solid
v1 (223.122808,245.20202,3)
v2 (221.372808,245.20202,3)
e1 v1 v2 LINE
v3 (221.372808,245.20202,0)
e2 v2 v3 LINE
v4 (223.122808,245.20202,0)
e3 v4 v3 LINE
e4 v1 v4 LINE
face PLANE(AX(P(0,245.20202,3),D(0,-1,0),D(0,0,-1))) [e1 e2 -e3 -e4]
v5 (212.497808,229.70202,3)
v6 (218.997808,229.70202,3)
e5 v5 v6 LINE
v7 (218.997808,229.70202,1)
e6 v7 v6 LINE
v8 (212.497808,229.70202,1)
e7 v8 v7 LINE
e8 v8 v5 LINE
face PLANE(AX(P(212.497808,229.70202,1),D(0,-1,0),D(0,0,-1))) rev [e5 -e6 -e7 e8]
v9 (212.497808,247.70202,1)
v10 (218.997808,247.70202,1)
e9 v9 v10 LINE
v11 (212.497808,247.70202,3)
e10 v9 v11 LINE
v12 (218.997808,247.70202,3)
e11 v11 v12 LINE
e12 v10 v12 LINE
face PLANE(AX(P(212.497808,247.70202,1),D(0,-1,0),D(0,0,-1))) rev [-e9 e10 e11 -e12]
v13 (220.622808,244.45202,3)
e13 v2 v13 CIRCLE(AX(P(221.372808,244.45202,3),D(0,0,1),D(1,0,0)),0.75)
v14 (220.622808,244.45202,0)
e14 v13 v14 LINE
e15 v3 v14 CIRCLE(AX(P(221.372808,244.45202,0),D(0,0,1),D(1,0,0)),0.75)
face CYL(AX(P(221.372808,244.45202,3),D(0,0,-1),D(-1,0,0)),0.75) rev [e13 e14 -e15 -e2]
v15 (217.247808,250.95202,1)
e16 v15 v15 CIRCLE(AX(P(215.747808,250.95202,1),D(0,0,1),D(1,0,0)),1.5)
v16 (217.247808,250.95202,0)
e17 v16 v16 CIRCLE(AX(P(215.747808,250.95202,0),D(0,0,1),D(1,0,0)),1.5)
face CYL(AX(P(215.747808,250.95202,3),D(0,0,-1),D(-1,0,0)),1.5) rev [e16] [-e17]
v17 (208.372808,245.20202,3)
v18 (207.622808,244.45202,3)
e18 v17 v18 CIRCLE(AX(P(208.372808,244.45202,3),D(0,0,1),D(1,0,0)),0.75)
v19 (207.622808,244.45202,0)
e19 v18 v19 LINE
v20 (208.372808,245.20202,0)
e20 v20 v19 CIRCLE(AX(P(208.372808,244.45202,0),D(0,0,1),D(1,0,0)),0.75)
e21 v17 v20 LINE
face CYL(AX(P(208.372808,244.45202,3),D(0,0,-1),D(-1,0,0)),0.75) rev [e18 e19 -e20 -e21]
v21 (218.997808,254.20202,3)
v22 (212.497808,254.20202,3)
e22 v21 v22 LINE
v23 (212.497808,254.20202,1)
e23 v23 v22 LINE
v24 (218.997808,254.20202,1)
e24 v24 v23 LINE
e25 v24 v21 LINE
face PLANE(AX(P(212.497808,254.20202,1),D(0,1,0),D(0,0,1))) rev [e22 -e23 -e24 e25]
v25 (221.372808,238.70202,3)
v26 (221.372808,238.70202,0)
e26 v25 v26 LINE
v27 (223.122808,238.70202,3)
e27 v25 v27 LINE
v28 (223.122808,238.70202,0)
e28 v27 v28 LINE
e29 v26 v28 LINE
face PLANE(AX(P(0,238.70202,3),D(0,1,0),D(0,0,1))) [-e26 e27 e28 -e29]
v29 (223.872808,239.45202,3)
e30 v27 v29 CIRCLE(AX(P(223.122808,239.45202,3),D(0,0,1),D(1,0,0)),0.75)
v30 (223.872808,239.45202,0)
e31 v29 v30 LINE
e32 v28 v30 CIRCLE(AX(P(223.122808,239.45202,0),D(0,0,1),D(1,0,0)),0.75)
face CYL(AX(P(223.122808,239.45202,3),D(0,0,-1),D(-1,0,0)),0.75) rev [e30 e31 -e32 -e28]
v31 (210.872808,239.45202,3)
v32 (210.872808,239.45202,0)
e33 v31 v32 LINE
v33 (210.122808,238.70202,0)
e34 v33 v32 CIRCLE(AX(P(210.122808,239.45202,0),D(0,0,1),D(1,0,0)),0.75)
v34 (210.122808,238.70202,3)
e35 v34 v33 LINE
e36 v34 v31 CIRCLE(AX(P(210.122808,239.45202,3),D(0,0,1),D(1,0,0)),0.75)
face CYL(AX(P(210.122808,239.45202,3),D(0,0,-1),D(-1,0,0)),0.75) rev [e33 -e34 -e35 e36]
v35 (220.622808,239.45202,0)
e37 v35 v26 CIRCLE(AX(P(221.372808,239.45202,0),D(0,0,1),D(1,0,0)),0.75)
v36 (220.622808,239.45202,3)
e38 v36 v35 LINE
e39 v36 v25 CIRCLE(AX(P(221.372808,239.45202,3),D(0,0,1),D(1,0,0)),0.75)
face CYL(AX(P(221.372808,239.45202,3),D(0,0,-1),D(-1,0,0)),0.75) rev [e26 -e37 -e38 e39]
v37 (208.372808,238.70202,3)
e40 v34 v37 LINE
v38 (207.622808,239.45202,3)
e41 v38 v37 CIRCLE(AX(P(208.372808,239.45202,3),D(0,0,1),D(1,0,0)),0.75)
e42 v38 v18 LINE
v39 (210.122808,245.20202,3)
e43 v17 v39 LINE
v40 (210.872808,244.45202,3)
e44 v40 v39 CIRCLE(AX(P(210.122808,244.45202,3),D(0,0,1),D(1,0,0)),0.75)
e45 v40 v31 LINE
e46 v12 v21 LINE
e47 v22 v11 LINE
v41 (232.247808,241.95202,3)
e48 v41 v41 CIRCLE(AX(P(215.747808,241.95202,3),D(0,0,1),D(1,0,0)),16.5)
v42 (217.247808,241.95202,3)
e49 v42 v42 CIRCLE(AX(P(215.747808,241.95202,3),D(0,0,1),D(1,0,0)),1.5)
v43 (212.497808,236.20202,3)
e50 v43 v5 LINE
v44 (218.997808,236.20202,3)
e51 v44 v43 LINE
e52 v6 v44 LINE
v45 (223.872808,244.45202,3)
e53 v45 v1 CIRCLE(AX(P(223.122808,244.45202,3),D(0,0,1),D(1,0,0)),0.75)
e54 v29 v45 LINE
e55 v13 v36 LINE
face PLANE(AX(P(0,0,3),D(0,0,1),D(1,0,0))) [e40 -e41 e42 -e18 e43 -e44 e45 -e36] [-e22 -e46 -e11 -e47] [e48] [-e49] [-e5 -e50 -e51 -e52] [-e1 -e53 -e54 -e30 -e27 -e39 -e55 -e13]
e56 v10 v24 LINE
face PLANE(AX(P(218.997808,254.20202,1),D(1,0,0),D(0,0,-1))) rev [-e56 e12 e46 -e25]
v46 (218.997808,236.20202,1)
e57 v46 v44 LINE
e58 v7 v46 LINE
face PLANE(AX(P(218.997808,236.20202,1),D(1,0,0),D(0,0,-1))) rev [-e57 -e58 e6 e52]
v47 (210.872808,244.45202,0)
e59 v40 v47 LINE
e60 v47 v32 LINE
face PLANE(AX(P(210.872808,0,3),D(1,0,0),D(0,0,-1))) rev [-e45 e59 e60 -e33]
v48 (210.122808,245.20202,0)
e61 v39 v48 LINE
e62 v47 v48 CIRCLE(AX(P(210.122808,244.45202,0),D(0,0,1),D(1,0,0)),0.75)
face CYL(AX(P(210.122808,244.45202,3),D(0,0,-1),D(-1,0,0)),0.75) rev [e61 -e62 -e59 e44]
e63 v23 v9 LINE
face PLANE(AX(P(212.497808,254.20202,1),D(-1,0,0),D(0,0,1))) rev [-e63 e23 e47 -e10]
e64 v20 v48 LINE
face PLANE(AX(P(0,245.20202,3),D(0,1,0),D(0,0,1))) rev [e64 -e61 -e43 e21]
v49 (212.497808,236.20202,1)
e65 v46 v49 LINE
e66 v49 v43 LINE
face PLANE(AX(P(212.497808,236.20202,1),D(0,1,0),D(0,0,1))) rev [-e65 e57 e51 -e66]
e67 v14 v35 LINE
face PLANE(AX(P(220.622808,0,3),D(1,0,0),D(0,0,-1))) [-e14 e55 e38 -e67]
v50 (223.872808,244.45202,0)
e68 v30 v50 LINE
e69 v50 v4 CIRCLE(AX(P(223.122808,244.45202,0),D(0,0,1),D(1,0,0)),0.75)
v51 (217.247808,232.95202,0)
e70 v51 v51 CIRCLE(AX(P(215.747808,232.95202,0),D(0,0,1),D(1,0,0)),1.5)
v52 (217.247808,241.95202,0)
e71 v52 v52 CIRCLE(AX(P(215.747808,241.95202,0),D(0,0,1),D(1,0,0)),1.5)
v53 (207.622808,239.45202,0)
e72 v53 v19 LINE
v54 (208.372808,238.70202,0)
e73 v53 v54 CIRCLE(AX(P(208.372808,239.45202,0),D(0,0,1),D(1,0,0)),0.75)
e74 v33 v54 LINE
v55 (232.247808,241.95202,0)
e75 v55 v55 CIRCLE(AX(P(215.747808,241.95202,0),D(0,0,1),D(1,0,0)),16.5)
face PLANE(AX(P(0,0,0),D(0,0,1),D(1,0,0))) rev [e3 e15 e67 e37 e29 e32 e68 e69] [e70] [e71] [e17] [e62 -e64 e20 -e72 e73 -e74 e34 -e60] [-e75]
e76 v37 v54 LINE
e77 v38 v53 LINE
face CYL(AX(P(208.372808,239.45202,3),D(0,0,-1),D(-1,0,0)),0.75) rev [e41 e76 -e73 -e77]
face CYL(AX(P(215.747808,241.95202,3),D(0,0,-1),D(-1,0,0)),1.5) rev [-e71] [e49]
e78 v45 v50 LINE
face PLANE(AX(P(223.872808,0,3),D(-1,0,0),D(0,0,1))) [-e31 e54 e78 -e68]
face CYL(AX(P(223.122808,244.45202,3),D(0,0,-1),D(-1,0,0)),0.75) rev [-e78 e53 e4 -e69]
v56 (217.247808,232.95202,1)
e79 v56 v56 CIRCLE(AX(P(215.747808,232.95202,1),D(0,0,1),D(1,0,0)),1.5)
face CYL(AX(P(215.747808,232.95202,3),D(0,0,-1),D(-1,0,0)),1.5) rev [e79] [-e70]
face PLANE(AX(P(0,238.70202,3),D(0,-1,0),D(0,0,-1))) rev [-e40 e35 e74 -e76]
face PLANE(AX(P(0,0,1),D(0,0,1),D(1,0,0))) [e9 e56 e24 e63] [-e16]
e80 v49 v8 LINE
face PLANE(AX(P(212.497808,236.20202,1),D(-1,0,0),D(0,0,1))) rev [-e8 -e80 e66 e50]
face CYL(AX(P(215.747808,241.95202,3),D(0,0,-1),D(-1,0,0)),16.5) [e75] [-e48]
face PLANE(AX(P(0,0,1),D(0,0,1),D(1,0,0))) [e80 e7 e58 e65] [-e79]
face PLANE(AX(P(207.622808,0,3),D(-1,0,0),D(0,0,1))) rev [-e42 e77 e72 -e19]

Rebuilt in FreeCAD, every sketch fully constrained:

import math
import FreeCAD as App
import Part
import Sketcher
from FreeCAD import Vector
Q = App.Units.Quantity


def add_polygon(sketch, points):
    """Adds a closed chain of lines whose ends are joined by coincident constraints."""
    first, n = sketch.GeometryCount, len(points)
    for a, b in zip(points, points[1:] + points[:1]):
        sketch.addGeometry(Part.LineSegment(App.Vector(*a, 0), App.Vector(*b, 0)), False)
    for i in range(n):
        sketch.addConstraint(Sketcher.Constraint("Coincident", first + i, 2, first + (i + 1) % n, 1))

doc = App.newDocument("Part")
body = doc.addObject("PartDesign::Body", "Body")

sketch1 = body.newObject("Sketcher::SketchObject", "Sketch")
sketch1.AttachmentSupport = (doc.getObject("XY_Plane"), [""])
sketch1.MapMode = "FlatFace"
sketch1.addGeometry([
    Part.Circle(Vector(215.747808, 241.95202, 0), Vector(0, 0, 1), 16.5),
    Part.Circle(Vector(215.747808, 232.95202, 0), Vector(0, 0, 1), 1.5),
    Part.ArcOfCircle(Part.Circle(Vector(208.372808, 244.45202, 0), Vector(0, 0, 1), 0.75), math.radians(90), math.radians(180)),
    Part.LineSegment(Vector(208.372808, 245.20202, 0), Vector(210.122808, 245.20202, 0)),
    Part.ArcOfCircle(Part.Circle(Vector(210.122808, 244.45202, 0), Vector(0, 0, 1), 0.75), math.radians(0), math.radians(90)),
    Part.LineSegment(Vector(210.872808, 244.45202, 0), Vector(210.872808, 239.45202, 0)),
    Part.ArcOfCircle(Part.Circle(Vector(210.122808, 239.45202, 0), Vector(0, 0, 1), 0.75), math.radians(-90), math.radians(0)),
    Part.LineSegment(Vector(210.122808, 238.70202, 0), Vector(208.372808, 238.70202, 0)),
    Part.ArcOfCircle(Part.Circle(Vector(208.372808, 239.45202, 0), Vector(0, 0, 1), 0.75), math.radians(-180), math.radians(-90)),
    Part.LineSegment(Vector(207.622808, 239.45202, 0), Vector(207.622808, 244.45202, 0)),
    Part.Circle(Vector(215.747808, 241.95202, 0), Vector(0, 0, 1), 1.5),
    Part.LineSegment(Vector(221.372808, 245.20202, 0), Vector(223.122808, 245.20202, 0)),
    Part.ArcOfCircle(Part.Circle(Vector(223.122808, 244.45202, 0), Vector(0, 0, 1), 0.75), math.radians(0), math.radians(90)),
    Part.LineSegment(Vector(223.872808, 244.45202, 0), Vector(223.872808, 239.45202, 0)),
    Part.ArcOfCircle(Part.Circle(Vector(223.122808, 239.45202, 0), Vector(0, 0, 1), 0.75), math.radians(-90), math.radians(0)),
    Part.LineSegment(Vector(223.122808, 238.70202, 0), Vector(221.372808, 238.70202, 0)),
    Part.ArcOfCircle(Part.Circle(Vector(221.372808, 239.45202, 0), Vector(0, 0, 1), 0.75), math.radians(-180), math.radians(-90)),
    Part.LineSegment(Vector(220.622808, 239.45202, 0), Vector(220.622808, 244.45202, 0)),
    Part.ArcOfCircle(Part.Circle(Vector(221.372808, 244.45202, 0), Vector(0, 0, 1), 0.75), math.radians(90), math.radians(180)),
    Part.Circle(Vector(215.747808, 250.95202, 0), Vector(0, 0, 1), 1.5),
], False)
sketch1.addConstraint([
    Sketcher.Constraint("Tangent", 2, 1, 3, 1),
    Sketcher.Constraint("Tangent", 3, 2, 4, 2),
    Sketcher.Constraint("Tangent", 4, 1, 5, 1),
    Sketcher.Constraint("Tangent", 5, 2, 6, 2),
    Sketcher.Constraint("Tangent", 6, 1, 7, 1),
    Sketcher.Constraint("Tangent", 7, 2, 8, 2),
    Sketcher.Constraint("Tangent", 8, 1, 9, 1),
    Sketcher.Constraint("Tangent", 9, 2, 2, 2),
    Sketcher.Constraint("Tangent", 11, 2, 12, 2),
    Sketcher.Constraint("Tangent", 12, 1, 13, 1),
    Sketcher.Constraint("Tangent", 13, 2, 14, 2),
    Sketcher.Constraint("Tangent", 14, 1, 15, 1),
    Sketcher.Constraint("Tangent", 15, 2, 16, 2),
    Sketcher.Constraint("Tangent", 16, 1, 17, 1),
    Sketcher.Constraint("Tangent", 17, 2, 18, 2),
    Sketcher.Constraint("Tangent", 18, 1, 11, 1),
    Sketcher.Constraint("Horizontal", 3),
    Sketcher.Constraint("Vertical", 5),
    Sketcher.Constraint("Horizontal", 7),
    Sketcher.Constraint("Vertical", 9),
    Sketcher.Constraint("Horizontal", 11),
    Sketcher.Constraint("Vertical", 13),
    Sketcher.Constraint("Horizontal", 15),
    Sketcher.Constraint("Vertical", 17),
    Sketcher.Constraint("Coincident", 10, 3, 0, 3),
    Sketcher.Constraint("Equal", 2, 4),
    Sketcher.Constraint("Equal", 4, 6),
    Sketcher.Constraint("Equal", 6, 8),
    Sketcher.Constraint("Equal", 1, 10),
    Sketcher.Constraint("Equal", 8, 12),
    Sketcher.Constraint("Equal", 12, 14),
    Sketcher.Constraint("Equal", 14, 16),
    Sketcher.Constraint("Equal", 16, 18),
    Sketcher.Constraint("Equal", 10, 19),
    Sketcher.Constraint("Horizontal", 4, 3, 12, 3),
    Sketcher.Constraint("Horizontal", 8, 3, 14, 3),
    Sketcher.Constraint("Vertical", 0, 3, 1, 3),
    Sketcher.Constraint("Vertical", 10, 3, 19, 3),
    Sketcher.Constraint("Equal", 7, 11),
    Sketcher.Constraint("Diameter", 0, Q("33 mm")),
    Sketcher.Constraint("Diameter", 1, Q("3 mm")),
    Sketcher.Constraint("DistanceY", 5, 2, 5, 1, Q("5 mm")),
    Sketcher.Constraint("Radius", 2, Q("0.75 mm")),
    Sketcher.Constraint("DistanceY", 1, 3, 0, 3, Q("9 mm")),
    Sketcher.Constraint("DistanceX", 4, 3, 12, 3, Q("13 mm")),
    Sketcher.Constraint("DistanceY", 0, 3, 19, 3, Q("9 mm")),
    Sketcher.Constraint("DistanceX", 3, 1, 3, 2, Q("1.75 mm")),
    Sketcher.Constraint("DistanceY", 0, 3, 2, 3, Q("2.5 mm")),
    Sketcher.Constraint("DistanceX", 2, 3, 0, 3, Q("7.375 mm")),
    Sketcher.Constraint("DistanceY", -1, 1, 0, 3, Q("241.95202 mm")),
    Sketcher.Constraint("DistanceX", -1, 1, 0, 3, Q("215.747808 mm")),
])
pad1 = body.newObject("PartDesign::Pad", "Pad")
pad1.Profile = sketch1
pad1.Length = 3

sketch2 = body.newObject("Sketcher::SketchObject", "Sketch001")
sketch2.AttachmentSupport = (doc.getObject("XY_Plane"), [""])
sketch2.MapMode = "FlatFace"
sketch2.AttachmentOffset = App.Placement(Vector(0, 0, 3), App.Rotation())
add_polygon(sketch2, [(212.497808, 254.20202), (212.497808, 247.70202), (218.997808, 247.70202), (218.997808, 254.20202)])
add_polygon(sketch2, [(212.497808, 236.20202), (212.497808, 229.70202), (218.997808, 229.70202), (218.997808, 236.20202)])
sketch2.addConstraint([
    Sketcher.Constraint("Vertical", 0),
    Sketcher.Constraint("Horizontal", 1),
    Sketcher.Constraint("Vertical", 2),
    Sketcher.Constraint("Horizontal", 3),
    Sketcher.Constraint("Vertical", 4),
    Sketcher.Constraint("Horizontal", 5),
    Sketcher.Constraint("Vertical", 6),
    Sketcher.Constraint("Horizontal", 7),
    Sketcher.Constraint("Vertical", 3, 2, 4, 2),
    Sketcher.Constraint("Vertical", 2, 2, 5, 2),
    Sketcher.Constraint("Equal", 7, 0),
    Sketcher.Constraint("Equal", 2, 4),
    Sketcher.Constraint("DistanceX", 1, 1, 1, 2, Q("6.5 mm")),
    Sketcher.Constraint("DistanceY", 4, 2, 0, 2, Q("18 mm")),
    Sketcher.Constraint("DistanceY", -1, 1, 0, 2, Q("247.70202 mm")),
    Sketcher.Constraint("DistanceX", -1, 1, 0, 2, Q("212.497808 mm")),
])
pocket1 = body.newObject("PartDesign::Pocket", "Pocket")
pocket1.Profile = sketch2
pocket1.Length = 2

doc.recompute()
